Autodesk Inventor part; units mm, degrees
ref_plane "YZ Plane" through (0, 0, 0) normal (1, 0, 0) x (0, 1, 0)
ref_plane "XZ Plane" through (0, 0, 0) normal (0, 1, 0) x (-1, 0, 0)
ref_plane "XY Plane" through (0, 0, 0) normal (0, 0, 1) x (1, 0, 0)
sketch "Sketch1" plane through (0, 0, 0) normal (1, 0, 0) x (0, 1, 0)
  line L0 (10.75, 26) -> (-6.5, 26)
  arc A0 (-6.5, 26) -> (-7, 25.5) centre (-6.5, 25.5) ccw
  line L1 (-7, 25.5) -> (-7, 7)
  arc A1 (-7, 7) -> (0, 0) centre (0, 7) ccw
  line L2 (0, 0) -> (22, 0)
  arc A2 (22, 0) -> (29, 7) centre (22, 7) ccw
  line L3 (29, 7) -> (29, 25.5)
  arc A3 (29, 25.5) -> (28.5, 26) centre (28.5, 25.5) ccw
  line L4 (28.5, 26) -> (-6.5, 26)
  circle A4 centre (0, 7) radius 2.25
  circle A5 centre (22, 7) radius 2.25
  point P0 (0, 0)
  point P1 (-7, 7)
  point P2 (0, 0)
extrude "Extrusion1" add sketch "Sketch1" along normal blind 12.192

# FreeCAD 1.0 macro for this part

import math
import FreeCAD as App
import Part
import Sketcher

doc = App.newDocument("Part")
body = doc.addObject("PartDesign::Body", "Body")

sketch1 = body.newObject("Sketcher::SketchObject", "Sketch")
sketch1.AttachmentSupport = (doc.getObject("YZ_Plane"), [""])
sketch1.MapMode = "FlatFace"
sketch1.addGeometry(Part.LineSegment(App.Vector(28.5, 26, 0), App.Vector(-6.5, 26, 0)), False)
sketch1.addGeometry(Part.ArcOfCircle(Part.Circle(App.Vector(-6.5, 25.5, 0), App.Vector(0, 0, 1), 0.5), math.radians(90), math.radians(180)), False)
sketch1.addGeometry(Part.LineSegment(App.Vector(-7, 25.5, 0), App.Vector(-7, 7, 0)), False)
sketch1.addGeometry(Part.ArcOfCircle(Part.Circle(App.Vector(0, 7, 0), App.Vector(0, 0, 1), 7), math.radians(180), math.radians(270)), False)
sketch1.addGeometry(Part.LineSegment(App.Vector(0, 0, 0), App.Vector(22, 0, 0)), False)
sketch1.addGeometry(Part.ArcOfCircle(Part.Circle(App.Vector(22, 7, 0), App.Vector(0, 0, 1), 7), math.radians(-90), math.radians(0)), False)
sketch1.addGeometry(Part.LineSegment(App.Vector(29, 7, 0), App.Vector(29, 25.5, 0)), False)
sketch1.addGeometry(Part.ArcOfCircle(Part.Circle(App.Vector(28.5, 25.5, 0), App.Vector(0, 0, 1), 0.5), math.radians(0), math.radians(90)), False)
sketch1.addGeometry(Part.Circle(App.Vector(0, 7, 0), App.Vector(0, 0, 1), 2.2), False)
sketch1.addGeometry(Part.Circle(App.Vector(22, 7, 0), App.Vector(0, 0, 1), 2.2), False)
sketch1.addConstraint(Sketcher.Constraint("Tangent", 0, 2, 1, 1))
sketch1.addConstraint(Sketcher.Constraint("Tangent", 1, 2, 2, 1))
sketch1.addConstraint(Sketcher.Constraint("Tangent", 2, 2, 3, 1))
sketch1.addConstraint(Sketcher.Constraint("Tangent", 3, 2, 4, 1))
sketch1.addConstraint(Sketcher.Constraint("Tangent", 4, 2, 5, 1))
sketch1.addConstraint(Sketcher.Constraint("Tangent", 5, 2, 6, 1))
sketch1.addConstraint(Sketcher.Constraint("Tangent", 6, 2, 7, 1))
sketch1.addConstraint(Sketcher.Constraint("Tangent", 7, 2, 0, 1))
sketch1.addConstraint(Sketcher.Constraint("Horizontal", 0))
sketch1.addConstraint(Sketcher.Constraint("Vertical", 2))
sketch1.addConstraint(Sketcher.Constraint("Horizontal", 4))
sketch1.addConstraint(Sketcher.Constraint("Vertical", 6))
sketch1.addConstraint(Sketcher.Constraint("Coincident", 3, 2, -1, 1))
sketch1.addConstraint(Sketcher.Constraint("Coincident", 8, 3, 3, 3))
sketch1.addConstraint(Sketcher.Constraint("Coincident", 9, 3, 5, 3))
sketch1.addConstraint(Sketcher.Constraint("Equal", 3, 5))
sketch1.addConstraint(Sketcher.Constraint("Equal", 1, 7))
sketch1.addConstraint(Sketcher.Constraint("Equal", 8, 9))
sketch1.addConstraint(Sketcher.Constraint("Radius", 3, 7.0))
sketch1.addConstraint(Sketcher.Constraint("Diameter", 8, 4.5))
sketch1.addConstraint(Sketcher.Constraint("Radius", 1, 0.5))
sketch1.addConstraint(Sketcher.Constraint("DistanceX", 0, 2, 0, 1, 35.0))
sketch1.addConstraint(Sketcher.Constraint("DistanceY", 2, 2, 2, 1, 18.5))
pad1 = body.newObject("PartDesign::Pad", "Pad")
pad1.Profile = sketch1
pad1.Length = 12.192

doc.recompute()
